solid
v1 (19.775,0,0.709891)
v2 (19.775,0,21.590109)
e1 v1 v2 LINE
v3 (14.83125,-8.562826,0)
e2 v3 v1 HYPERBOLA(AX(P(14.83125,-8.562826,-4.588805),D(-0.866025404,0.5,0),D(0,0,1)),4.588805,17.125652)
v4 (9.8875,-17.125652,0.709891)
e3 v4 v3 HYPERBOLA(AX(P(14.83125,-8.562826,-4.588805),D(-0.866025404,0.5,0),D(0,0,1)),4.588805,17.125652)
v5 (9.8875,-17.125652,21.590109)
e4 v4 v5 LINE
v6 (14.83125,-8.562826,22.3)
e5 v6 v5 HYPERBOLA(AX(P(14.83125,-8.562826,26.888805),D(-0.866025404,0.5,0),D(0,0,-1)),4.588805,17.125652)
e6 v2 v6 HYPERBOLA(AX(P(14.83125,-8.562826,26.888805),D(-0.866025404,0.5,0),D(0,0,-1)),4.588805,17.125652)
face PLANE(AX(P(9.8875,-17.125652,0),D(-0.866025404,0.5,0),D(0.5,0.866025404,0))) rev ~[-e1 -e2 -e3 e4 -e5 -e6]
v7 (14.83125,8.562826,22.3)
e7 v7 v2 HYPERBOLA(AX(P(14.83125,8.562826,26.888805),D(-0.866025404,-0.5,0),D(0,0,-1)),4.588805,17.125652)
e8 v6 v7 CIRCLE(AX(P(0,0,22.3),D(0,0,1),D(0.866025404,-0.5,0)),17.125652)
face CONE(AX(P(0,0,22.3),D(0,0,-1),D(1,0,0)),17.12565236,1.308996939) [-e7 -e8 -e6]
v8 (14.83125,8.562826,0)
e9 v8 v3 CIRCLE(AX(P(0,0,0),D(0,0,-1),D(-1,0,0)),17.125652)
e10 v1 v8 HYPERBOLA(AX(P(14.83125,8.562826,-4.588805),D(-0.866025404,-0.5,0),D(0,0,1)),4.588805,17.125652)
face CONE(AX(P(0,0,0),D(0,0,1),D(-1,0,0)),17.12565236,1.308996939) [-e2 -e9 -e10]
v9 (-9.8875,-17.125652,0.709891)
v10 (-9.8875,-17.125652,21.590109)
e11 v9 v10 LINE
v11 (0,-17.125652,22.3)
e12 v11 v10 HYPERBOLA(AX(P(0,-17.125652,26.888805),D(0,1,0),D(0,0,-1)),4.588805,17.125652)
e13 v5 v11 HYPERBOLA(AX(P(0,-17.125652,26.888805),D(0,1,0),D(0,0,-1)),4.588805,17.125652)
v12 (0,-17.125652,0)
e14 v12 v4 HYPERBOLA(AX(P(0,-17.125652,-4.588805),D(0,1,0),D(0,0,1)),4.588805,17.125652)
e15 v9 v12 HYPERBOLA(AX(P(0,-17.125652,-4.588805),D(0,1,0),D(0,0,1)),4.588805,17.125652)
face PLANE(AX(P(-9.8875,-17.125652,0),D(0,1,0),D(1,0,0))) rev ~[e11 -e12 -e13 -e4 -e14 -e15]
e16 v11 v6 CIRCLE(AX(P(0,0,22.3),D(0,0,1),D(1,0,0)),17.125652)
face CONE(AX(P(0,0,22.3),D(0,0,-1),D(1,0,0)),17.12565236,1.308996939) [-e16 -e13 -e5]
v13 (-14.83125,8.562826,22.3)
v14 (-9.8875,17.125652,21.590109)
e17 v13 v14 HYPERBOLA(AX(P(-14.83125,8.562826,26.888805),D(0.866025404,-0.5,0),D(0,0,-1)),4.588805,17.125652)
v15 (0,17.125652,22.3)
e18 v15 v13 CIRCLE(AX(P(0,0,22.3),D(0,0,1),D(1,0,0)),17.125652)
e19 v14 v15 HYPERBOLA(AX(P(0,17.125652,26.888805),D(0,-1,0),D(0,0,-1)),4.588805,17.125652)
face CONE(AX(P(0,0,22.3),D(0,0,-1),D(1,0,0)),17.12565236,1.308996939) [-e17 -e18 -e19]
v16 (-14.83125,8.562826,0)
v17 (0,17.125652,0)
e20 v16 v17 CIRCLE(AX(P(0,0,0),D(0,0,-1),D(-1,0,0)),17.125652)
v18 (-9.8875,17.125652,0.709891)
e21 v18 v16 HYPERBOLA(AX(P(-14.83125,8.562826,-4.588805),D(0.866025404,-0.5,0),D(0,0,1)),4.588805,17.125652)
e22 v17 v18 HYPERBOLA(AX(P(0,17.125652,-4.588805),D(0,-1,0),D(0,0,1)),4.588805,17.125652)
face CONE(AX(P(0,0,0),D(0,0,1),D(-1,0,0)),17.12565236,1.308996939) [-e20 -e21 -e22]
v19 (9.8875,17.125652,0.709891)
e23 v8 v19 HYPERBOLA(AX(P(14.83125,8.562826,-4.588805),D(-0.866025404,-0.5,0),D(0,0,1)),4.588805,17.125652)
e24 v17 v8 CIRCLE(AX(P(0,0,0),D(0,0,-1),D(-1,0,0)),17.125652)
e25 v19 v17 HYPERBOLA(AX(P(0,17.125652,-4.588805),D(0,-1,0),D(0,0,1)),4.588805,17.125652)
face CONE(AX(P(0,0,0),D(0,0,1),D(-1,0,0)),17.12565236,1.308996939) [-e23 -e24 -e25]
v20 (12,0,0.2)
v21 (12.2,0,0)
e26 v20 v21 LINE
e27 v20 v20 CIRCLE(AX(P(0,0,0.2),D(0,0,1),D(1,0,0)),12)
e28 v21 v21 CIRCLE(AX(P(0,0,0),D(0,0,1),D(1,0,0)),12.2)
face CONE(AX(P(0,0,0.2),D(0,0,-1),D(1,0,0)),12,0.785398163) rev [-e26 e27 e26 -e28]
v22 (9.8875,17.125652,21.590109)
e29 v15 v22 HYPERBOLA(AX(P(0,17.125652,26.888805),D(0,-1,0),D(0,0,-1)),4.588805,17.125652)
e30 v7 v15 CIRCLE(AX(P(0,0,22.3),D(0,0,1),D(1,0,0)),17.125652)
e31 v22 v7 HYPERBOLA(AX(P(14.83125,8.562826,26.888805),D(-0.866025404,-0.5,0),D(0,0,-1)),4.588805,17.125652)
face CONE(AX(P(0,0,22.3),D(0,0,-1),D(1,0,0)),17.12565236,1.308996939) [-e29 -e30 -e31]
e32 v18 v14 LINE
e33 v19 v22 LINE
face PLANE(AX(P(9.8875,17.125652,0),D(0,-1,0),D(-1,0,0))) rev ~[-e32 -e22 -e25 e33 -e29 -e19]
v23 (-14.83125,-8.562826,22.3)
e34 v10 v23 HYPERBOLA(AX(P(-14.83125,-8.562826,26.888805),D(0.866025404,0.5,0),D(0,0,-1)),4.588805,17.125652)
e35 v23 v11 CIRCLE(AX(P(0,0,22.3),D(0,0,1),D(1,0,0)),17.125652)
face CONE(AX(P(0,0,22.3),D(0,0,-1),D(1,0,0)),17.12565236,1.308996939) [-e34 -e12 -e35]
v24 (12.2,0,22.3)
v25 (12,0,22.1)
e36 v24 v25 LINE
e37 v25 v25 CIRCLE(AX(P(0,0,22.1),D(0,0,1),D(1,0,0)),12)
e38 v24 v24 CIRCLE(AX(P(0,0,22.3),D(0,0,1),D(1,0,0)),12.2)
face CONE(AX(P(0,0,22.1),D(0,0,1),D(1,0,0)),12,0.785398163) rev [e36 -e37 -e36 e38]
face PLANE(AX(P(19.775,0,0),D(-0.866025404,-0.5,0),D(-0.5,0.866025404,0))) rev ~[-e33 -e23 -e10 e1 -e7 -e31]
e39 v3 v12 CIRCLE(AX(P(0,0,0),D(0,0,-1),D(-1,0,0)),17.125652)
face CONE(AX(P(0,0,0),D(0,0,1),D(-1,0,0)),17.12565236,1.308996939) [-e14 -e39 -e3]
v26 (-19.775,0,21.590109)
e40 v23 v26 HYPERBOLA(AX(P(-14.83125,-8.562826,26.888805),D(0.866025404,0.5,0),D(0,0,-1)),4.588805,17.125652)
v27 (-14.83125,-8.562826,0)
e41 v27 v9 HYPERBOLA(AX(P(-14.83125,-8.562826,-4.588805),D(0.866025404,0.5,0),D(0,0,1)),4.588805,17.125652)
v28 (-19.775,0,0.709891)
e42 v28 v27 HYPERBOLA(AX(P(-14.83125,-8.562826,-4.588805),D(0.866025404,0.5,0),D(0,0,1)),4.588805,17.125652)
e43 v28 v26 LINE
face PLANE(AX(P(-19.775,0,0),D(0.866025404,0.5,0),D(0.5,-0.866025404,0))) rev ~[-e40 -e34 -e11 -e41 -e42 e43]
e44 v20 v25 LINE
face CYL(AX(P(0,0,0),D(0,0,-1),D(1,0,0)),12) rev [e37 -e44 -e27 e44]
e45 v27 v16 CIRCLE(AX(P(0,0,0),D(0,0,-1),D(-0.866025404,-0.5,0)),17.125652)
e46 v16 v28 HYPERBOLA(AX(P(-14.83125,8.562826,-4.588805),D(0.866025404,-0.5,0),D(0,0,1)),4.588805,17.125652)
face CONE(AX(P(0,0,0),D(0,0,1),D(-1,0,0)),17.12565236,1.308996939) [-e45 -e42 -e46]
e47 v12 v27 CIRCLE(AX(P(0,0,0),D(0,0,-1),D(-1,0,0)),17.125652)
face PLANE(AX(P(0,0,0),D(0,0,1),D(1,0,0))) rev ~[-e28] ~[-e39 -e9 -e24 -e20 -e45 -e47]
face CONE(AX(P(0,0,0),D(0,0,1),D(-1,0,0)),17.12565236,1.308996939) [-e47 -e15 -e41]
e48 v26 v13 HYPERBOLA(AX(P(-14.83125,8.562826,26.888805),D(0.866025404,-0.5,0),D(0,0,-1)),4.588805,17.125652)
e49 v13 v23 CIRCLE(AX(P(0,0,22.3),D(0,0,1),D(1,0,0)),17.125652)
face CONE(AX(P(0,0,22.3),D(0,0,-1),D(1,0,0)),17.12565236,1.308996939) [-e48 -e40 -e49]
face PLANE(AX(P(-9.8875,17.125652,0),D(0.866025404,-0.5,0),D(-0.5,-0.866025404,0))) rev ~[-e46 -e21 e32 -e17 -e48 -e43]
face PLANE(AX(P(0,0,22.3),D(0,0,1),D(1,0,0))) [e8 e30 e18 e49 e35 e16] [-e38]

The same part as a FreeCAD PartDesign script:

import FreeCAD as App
import Part
import Sketcher
from FreeCAD import Vector
Q = App.Units.Quantity


def edges_at(feature, points):
    """Names of the edges that pass closest to the given points."""
    edges = feature.Shape.Edges
    near = lambda p: min(range(len(edges)), key=lambda i: edges[i].distToShape(Part.Vertex(*p))[0])
    return sorted({f"Edge{near(p) + 1}" for p in points})


def faces_at(feature, points):
    """Names of the faces that lie closest to the given points."""
    faces = feature.Shape.Faces
    near = lambda p: min(range(len(faces)), key=lambda i: faces[i].distToShape(Part.Vertex(*p))[0])
    return sorted({f"Face{near(p) + 1}" for p in points})

doc = App.newDocument("Part")
body = doc.addObject("PartDesign::Body", "Body")

sketch1 = doc.addObject("Sketcher::SketchObject", "Sketch")
body.addObject(sketch1)
sketch1.AttachmentSupport = (doc.XY_Plane, [""])
sketch1.MapMode = "FlatFace"
sketch1.addGeometry(Part.LineSegment(Vector(9.8875, 17.125652, 0), Vector(-9.8875, 17.125652, 0)), False)
sketch1.addGeometry(Part.LineSegment(Vector(-9.8875, 17.125652, 0), Vector(-19.775, 0, 0)), False)
sketch1.addGeometry(Part.LineSegment(Vector(-19.775, 0, 0), Vector(-9.8875, -17.125652, 0)), False)
sketch1.addGeometry(Part.LineSegment(Vector(-9.8875, -17.125652, 0), Vector(9.8875, -17.125652, 0)), False)
sketch1.addGeometry(Part.LineSegment(Vector(9.8875, -17.125652, 0), Vector(19.775, 0, 0)), False)
sketch1.addGeometry(Part.LineSegment(Vector(19.775, 0, 0), Vector(9.8875, 17.125652, 0)), False)
sketch1.addGeometry(Part.Circle(Vector(0, 0, 0), Vector(0, 0, 1), 12), False)
sketch1.addConstraint(Sketcher.Constraint("Coincident", 0, 2, 1, 1))
sketch1.addConstraint(Sketcher.Constraint("Coincident", 1, 2, 2, 1))
sketch1.addConstraint(Sketcher.Constraint("Coincident", 2, 2, 3, 1))
sketch1.addConstraint(Sketcher.Constraint("Coincident", 3, 2, 4, 1))
sketch1.addConstraint(Sketcher.Constraint("Coincident", 4, 2, 5, 1))
sketch1.addConstraint(Sketcher.Constraint("Coincident", 5, 2, 0, 1))
sketch1.addConstraint(Sketcher.Constraint("Horizontal", 0))
sketch1.addConstraint(Sketcher.Constraint("Horizontal", 3))
sketch1.addConstraint(Sketcher.Constraint("Coincident", 6, 3, -1, 1))
sketch1.addConstraint(Sketcher.Constraint("Symmetric", 0, 2, 3, 2, -1, 1))
sketch1.addConstraint(Sketcher.Constraint("Symmetric", 1, 2, 4, 2, -1, 1))
sketch1.addConstraint(Sketcher.Constraint("PointOnObject", 1, 2, -1))
sketch1.addConstraint(Sketcher.Constraint("Parallel", 2, 5))
sketch1.addConstraint(Sketcher.Constraint("Vertical", 0, 2, 2, 2))
sketch1.addConstraint(Sketcher.Constraint("Diameter", 6, Q("24 mm")))
sketch1.addConstraint(Sketcher.Constraint("Angle", 1, Q("-120 deg")))
sketch1.addConstraint(Sketcher.Constraint("DistanceX", 0, 2, 0, 1, Q("19.775 mm")))
sketch1.addConstraint(Sketcher.Constraint("DistanceX", 1, 2, 4, 2, Q("39.55 mm")))
pad1 = doc.addObject("PartDesign::Pad", "Pad")
body.addObject(pad1)
pad1.Profile = sketch1
pad1.Length = 22.3
body2 = doc.addObject("PartDesign::Body", "Body001")

sketch2 = doc.addObject("Sketcher::SketchObject", "Sketch001")
body2.addObject(sketch2)
sketch2.AttachmentSupport = (doc.getObject("XY_Plane001"), [""])
sketch2.MapMode = "FlatFace"
sketch2.addGeometry(Part.LineSegment(Vector(168.28, 165.631, 0), Vector(168.28, -165.631, 0)), False)
sketch2.addGeometry(Part.LineSegment(Vector(168.28, -165.631, 0), Vector(-168.28, -165.631, 0)), False)
sketch2.addGeometry(Part.LineSegment(Vector(-168.28, -165.631, 0), Vector(-168.28, 165.631, 0)), False)
sketch2.addGeometry(Part.LineSegment(Vector(-168.28, 165.631, 0), Vector(168.28, 165.631, 0)), False)
sketch2.addGeometry(Part.Circle(Vector(0, 0, 0), Vector(0, 0, 1), 17.125652), False)
sketch2.addConstraint(Sketcher.Constraint("Coincident", 0, 2, 1, 1))
sketch2.addConstraint(Sketcher.Constraint("Coincident", 1, 2, 2, 1))
sketch2.addConstraint(Sketcher.Constraint("Coincident", 2, 2, 3, 1))
sketch2.addConstraint(Sketcher.Constraint("Coincident", 3, 2, 0, 1))
sketch2.addConstraint(Sketcher.Constraint("Vertical", 0))
sketch2.addConstraint(Sketcher.Constraint("Horizontal", 1))
sketch2.addConstraint(Sketcher.Constraint("Vertical", 2))
sketch2.addConstraint(Sketcher.Constraint("Horizontal", 3))
sketch2.addConstraint(Sketcher.Constraint("Coincident", 4, 3, -1, 1))
sketch2.addConstraint(Sketcher.Constraint("Symmetric", 0, 2, 2, 2, -1, 1))
sketch2.addConstraint(Sketcher.Constraint("DistanceX", 1, 2, 1, 1, Q("336.56 mm")))
sketch2.addConstraint(Sketcher.Constraint("DistanceY", 0, 2, 0, 1, Q("331.262 mm")))
sketch2.addConstraint(Sketcher.Constraint("Diameter", 4, Q("34.251305 mm")))
pad2 = doc.addObject("PartDesign::Pad", "Pad001")
body2.addObject(pad2)
pad2.Profile = sketch2
pad2.Length = 38
doc.recompute()

draft = doc.addObject("PartDesign::Draft", "Draft")
body2.addObject(draft)
draft.Base = (pad2, faces_at(pad2, [
    (0, -165.631, 19),
    (-168.28, 0, 19),
    (0, 165.631, 19),
    (168.28, 0, 19),
    (17.126, 0, 19),
]))
draft.NeutralPlane = (doc.getObject("XY_Plane001"), [""])
draft.Angle = 75
draft.Reversed = False
doc.recompute()

boolean = doc.addObject("PartDesign::Boolean", "Boolean")
body.addObject(boolean)
boolean.Type = "Cut"
boolean.addObjects([body2])
body3 = doc.addObject("PartDesign::Body", "Body002")

sketch3 = doc.addObject("Sketcher::SketchObject", "Sketch002")
body3.addObject(sketch3)
sketch3.AttachmentSupport = (doc.getObject("XY_Plane002"), [""])
sketch3.MapMode = "FlatFace"
sketch3.AttachmentOffset = App.Placement(Vector(0, 0, 22.3), App.Rotation())
sketch3.addGeometry(Part.LineSegment(Vector(-168.28, 165.631, 0), Vector(-168.28, -165.631, 0)), False)
sketch3.addGeometry(Part.LineSegment(Vector(-168.28, -165.631, 0), Vector(168.28, -165.631, 0)), False)
sketch3.addGeometry(Part.LineSegment(Vector(168.28, -165.631, 0), Vector(168.28, 165.631, 0)), False)
sketch3.addGeometry(Part.LineSegment(Vector(168.28, 165.631, 0), Vector(-168.28, 165.631, 0)), False)
sketch3.addGeometry(Part.Circle(Vector(0, 0, 0), Vector(0, 0, 1), 17.125652), False)
sketch3.addConstraint(Sketcher.Constraint("Coincident", 0, 2, 1, 1))
sketch3.addConstraint(Sketcher.Constraint("Coincident", 1, 2, 2, 1))
sketch3.addConstraint(Sketcher.Constraint("Coincident", 2, 2, 3, 1))
sketch3.addConstraint(Sketcher.Constraint("Coincident", 3, 2, 0, 1))
sketch3.addConstraint(Sketcher.Constraint("Vertical", 0))
sketch3.addConstraint(Sketcher.Constraint("Horizontal", 1))
sketch3.addConstraint(Sketcher.Constraint("Vertical", 2))
sketch3.addConstraint(Sketcher.Constraint("Horizontal", 3))
sketch3.addConstraint(Sketcher.Constraint("Coincident", 4, 3, -1, 1))
sketch3.addConstraint(Sketcher.Constraint("Symmetric", 0, 2, 2, 2, -1, 1))
sketch3.addConstraint(Sketcher.Constraint("DistanceX", 1, 1, 1, 2, Q("336.56 mm")))
sketch3.addConstraint(Sketcher.Constraint("DistanceY", 0, 2, 0, 1, Q("331.262 mm")))
sketch3.addConstraint(Sketcher.Constraint("Diameter", 4, Q("34.251305 mm")))
pad3 = doc.addObject("PartDesign::Pad", "Pad002")
body3.addObject(pad3)
pad3.Profile = sketch3
pad3.Length = 38
pad3.Reversed = True
doc.recompute()

datumplane = doc.addObject("PartDesign::Plane", "DatumPlane")
body3.addObject(datumplane)
datumplane.AttachmentSupport = (doc.getObject("XY_Plane002"), [""])
datumplane.MapMode = "FlatFace"
datumplane.AttachmentOffset = App.Placement(Vector(0, 0, 22.3), App.Rotation())
draft2 = doc.addObject("PartDesign::Draft", "Draft001")
body3.addObject(draft2)
draft2.Base = (pad3, faces_at(pad3, [
    (0, -165.631, 3.3),
    (168.28, 0, 3.3),
    (0, 165.631, 3.3),
    (-168.28, 0, 3.3),
    (-17.126, 0, 3.3),
]))
draft2.NeutralPlane = (datumplane, [""])
draft2.Angle = 75
draft2.Reversed = True
doc.recompute()

boolean2 = doc.addObject("PartDesign::Boolean", "Boolean001")
body.addObject(boolean2)
boolean2.Type = "Cut"
boolean2.addObjects([body3])
doc.recompute()

chamfer = doc.addObject("PartDesign::Chamfer", "Chamfer")
body.addObject(chamfer)
chamfer.Base = (boolean2, edges_at(boolean2, [(-12, 0, 0), (-12, 0, 22.3)]))
chamfer.Size = 0.2

doc.recompute()
